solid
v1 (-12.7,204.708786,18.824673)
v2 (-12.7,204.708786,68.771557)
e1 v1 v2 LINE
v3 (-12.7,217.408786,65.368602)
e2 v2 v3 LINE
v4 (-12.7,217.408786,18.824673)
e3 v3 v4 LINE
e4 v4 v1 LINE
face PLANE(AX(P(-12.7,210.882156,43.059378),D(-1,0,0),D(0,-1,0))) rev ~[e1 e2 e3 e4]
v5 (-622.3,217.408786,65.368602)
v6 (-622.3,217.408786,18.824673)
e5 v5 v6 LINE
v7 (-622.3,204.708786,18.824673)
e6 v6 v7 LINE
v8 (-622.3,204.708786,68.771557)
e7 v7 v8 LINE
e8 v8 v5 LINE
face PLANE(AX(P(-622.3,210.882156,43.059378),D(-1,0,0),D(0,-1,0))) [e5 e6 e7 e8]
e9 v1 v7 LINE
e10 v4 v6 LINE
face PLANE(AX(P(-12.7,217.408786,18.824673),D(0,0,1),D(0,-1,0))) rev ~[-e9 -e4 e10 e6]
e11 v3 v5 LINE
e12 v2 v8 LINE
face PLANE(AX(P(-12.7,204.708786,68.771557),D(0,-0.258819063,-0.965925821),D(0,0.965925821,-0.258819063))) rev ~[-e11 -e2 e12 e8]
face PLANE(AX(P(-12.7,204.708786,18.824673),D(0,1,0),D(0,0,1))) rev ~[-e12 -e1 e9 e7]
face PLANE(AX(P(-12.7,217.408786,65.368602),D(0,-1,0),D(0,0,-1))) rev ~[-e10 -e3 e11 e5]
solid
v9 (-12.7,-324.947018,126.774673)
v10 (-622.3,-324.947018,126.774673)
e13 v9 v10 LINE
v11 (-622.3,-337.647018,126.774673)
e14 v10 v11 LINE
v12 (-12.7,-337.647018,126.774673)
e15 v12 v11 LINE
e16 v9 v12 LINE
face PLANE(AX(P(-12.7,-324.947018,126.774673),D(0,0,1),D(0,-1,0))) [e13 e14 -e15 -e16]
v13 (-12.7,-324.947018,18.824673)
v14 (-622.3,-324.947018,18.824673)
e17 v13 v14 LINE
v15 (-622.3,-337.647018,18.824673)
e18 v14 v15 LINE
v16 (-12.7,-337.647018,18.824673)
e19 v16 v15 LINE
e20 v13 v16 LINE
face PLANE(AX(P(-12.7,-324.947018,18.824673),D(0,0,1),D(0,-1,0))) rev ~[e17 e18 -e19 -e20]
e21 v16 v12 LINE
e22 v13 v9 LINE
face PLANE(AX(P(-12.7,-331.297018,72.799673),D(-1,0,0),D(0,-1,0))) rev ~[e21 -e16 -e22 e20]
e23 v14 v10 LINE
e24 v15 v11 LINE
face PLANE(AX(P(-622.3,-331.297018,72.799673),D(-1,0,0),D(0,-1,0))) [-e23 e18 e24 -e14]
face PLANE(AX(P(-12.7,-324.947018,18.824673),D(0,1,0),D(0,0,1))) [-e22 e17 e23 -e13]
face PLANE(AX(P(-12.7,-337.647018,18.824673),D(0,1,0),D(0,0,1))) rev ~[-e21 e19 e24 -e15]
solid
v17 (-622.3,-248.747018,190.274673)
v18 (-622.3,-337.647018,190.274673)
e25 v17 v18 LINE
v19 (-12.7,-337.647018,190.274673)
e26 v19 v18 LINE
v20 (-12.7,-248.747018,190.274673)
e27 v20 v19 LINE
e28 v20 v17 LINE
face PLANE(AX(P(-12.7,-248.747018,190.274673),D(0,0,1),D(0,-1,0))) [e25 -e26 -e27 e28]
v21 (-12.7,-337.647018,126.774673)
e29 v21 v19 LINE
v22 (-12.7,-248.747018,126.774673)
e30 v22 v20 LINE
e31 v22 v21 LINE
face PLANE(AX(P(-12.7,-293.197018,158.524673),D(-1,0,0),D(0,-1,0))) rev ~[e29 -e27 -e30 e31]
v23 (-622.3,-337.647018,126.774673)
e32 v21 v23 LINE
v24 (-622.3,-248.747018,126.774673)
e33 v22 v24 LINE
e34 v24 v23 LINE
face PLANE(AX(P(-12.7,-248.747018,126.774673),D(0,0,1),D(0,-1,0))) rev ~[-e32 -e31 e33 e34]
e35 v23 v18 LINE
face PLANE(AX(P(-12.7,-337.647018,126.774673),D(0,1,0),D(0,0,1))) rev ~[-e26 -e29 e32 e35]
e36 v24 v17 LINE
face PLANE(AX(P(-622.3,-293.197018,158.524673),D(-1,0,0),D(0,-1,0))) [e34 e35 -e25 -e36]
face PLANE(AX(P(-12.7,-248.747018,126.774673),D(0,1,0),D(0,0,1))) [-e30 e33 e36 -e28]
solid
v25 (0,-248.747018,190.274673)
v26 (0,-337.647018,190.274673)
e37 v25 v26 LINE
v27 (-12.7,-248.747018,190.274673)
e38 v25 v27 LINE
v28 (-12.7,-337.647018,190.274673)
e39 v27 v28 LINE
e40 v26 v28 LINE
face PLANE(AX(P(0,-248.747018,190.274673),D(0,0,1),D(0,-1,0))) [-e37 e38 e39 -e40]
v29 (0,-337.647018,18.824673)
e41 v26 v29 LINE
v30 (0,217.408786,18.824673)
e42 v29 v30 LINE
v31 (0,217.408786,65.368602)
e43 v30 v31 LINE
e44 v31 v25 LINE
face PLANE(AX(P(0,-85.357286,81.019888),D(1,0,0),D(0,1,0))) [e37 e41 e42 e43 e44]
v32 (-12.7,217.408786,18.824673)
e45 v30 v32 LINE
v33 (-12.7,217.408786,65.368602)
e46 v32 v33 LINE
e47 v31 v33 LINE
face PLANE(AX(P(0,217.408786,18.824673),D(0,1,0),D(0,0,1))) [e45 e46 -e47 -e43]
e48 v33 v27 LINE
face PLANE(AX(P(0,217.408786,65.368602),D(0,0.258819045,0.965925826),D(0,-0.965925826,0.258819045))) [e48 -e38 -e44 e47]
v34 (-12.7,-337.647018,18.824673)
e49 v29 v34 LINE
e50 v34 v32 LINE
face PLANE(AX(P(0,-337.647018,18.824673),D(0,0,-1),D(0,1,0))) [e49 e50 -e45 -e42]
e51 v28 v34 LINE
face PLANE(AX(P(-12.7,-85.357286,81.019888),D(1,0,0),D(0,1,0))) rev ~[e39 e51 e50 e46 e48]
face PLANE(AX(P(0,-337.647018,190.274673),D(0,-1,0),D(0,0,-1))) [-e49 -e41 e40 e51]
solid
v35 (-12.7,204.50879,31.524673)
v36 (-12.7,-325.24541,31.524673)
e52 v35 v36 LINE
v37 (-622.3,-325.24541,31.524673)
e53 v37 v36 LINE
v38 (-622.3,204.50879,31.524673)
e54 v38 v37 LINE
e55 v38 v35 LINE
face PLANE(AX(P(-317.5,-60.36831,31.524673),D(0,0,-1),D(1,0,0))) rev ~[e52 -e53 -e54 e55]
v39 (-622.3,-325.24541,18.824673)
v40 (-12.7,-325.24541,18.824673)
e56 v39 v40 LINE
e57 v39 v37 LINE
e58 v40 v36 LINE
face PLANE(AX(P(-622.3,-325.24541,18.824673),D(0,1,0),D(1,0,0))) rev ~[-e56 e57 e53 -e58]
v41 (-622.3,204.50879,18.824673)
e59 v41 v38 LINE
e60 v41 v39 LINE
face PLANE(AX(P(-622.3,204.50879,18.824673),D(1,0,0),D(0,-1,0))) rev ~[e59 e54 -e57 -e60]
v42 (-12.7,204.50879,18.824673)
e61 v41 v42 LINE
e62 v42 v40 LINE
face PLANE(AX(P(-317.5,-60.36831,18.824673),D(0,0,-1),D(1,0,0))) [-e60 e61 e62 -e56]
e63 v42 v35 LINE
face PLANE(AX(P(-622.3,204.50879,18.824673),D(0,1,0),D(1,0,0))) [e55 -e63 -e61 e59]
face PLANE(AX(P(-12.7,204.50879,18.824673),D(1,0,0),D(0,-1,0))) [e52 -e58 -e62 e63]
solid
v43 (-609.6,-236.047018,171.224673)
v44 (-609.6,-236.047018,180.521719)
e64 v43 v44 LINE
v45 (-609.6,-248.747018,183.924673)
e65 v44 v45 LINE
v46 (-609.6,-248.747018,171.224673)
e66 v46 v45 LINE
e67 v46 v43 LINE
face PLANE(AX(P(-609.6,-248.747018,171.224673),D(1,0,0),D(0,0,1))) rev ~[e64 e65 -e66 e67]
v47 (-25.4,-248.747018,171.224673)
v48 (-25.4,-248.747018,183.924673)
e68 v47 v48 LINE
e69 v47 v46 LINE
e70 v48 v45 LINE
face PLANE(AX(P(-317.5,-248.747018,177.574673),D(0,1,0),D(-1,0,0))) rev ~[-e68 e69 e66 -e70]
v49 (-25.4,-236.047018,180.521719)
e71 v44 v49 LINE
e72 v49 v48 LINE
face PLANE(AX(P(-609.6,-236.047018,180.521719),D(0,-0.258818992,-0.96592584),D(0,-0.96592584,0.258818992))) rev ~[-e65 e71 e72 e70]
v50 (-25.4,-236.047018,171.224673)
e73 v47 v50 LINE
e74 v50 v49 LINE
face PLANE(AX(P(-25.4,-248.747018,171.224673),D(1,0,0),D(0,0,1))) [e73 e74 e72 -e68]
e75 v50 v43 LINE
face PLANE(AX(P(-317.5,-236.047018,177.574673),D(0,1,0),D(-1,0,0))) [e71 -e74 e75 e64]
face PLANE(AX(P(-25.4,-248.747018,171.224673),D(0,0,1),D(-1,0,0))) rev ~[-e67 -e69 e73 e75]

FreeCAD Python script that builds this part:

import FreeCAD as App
import Part
import Sketcher
from FreeCAD import Vector
Q = App.Units.Quantity


def add_polygon(sketch, points):
    """Adds a closed chain of lines whose ends are joined by coincident constraints."""
    first, n = sketch.GeometryCount, len(points)
    for a, b in zip(points, points[1:] + points[:1]):
        sketch.addGeometry(Part.LineSegment(App.Vector(*a, 0), App.Vector(*b, 0)), False)
    for i in range(n):
        sketch.addConstraint(Sketcher.Constraint("Coincident", first + i, 2, first + (i + 1) % n, 1))

doc = App.newDocument("Part")
body = doc.addObject("PartDesign::Body", "Body")

# Sketch on YZ plane
sketch1 = body.newObject("Sketcher::SketchObject", "Sketch")
sketch1.AttachmentSupport = (doc.getObject("YZ_Plane"), [""])
sketch1.MapMode = "FlatFace"
add_polygon(sketch1, [(-338, 19), (217, 19), (217, 65), (-249, 190), (-338, 190)])  # lines 0-4
sketch1.addConstraint(Sketcher.Constraint("Horizontal", 0))
sketch1.addConstraint(Sketcher.Constraint("Vertical", 1))
sketch1.addConstraint(Sketcher.Constraint("Horizontal", 3))
sketch1.addConstraint(Sketcher.Constraint("Vertical", 4))
sketch1.addConstraint(Sketcher.Constraint("Distance", 2, Q("19 in")))
sketch1.addConstraint(Sketcher.Constraint("DistanceX", 3, 2, 3, 1, Q("3.5 in")))
sketch1.addConstraint(Sketcher.Constraint("Angle", 2, Q("165 deg")))
sketch1.addConstraint(Sketcher.Constraint("DistanceY", 4, 2, 4, 1, Q("6.75 in")))
sketch1.addConstraint(Sketcher.Constraint("DistanceY", -1, 1, 1, 2, 65.368602))
sketch1.addConstraint(Sketcher.Constraint("DistanceX", 2, 2, -1, 1, 248.747018))
pad1 = body.newObject("PartDesign::Pad", "Pad")
pad1.Profile = sketch1
pad1.Length = Q("0.5 in")
pad1.Reversed = True
body2 = doc.addObject("PartDesign::Body", "Body001")

# Sketch on YZ plane
sketch2 = body2.newObject("Sketcher::SketchObject", "Sketch001")
sketch2.AttachmentSupport = (doc.getObject("YZ_Plane001"), [""])
sketch2.MapMode = "FlatFace"
sketch2.AttachmentOffset = App.Placement(Vector(0, 0, -0.5 * 25.4), App.Rotation())
add_polygon(sketch2, [(217, 65), (217, 19), (205, 19), (205, 69)])  # lines 0-3
sketch2.addConstraint(Sketcher.Constraint("Vertical", 0))
sketch2.addConstraint(Sketcher.Constraint("Horizontal", 1))
sketch2.addConstraint(Sketcher.Constraint("Vertical", 2))
sketch2.addConstraint(Sketcher.Constraint("DistanceX", 1, 2, 1, 1, Q("0.5 in")))
sketch2.addConstraint(Sketcher.Constraint("Angle", 3, Q("-15.000001 deg")))
sketch2.addConstraint(Sketcher.Constraint("DistanceY", 0, 2, 0, 1, 46.543929))
sketch2.addConstraint(Sketcher.Constraint("DistanceY", -1, 1, 3, 2, 65.368602))
sketch2.addConstraint(Sketcher.Constraint("DistanceX", -1, 1, 0, 2, 217.408786))
pad2 = body2.newObject("PartDesign::Pad", "Pad001")
pad2.Profile = sketch2
pad2.Length = Q("24 in")
pad2.Reversed = True
body3 = doc.addObject("PartDesign::Body", "Body002")

# Sketch on YZ plane
sketch3 = body3.newObject("Sketcher::SketchObject", "Sketch002")
sketch3.AttachmentSupport = (doc.getObject("YZ_Plane002"), [""])
sketch3.MapMode = "FlatFace"
sketch3.AttachmentOffset = App.Placement(Vector(0, 0, -0.5 * 25.4), App.Rotation())
add_polygon(sketch3, [(-249, 190), (-249, 127), (-338, 127), (-338, 190)])  # lines 0-3
sketch3.addConstraint(Sketcher.Constraint("Vertical", 0))
sketch3.addConstraint(Sketcher.Constraint("Horizontal", 1))
sketch3.addConstraint(Sketcher.Constraint("Vertical", 2))
sketch3.addConstraint(Sketcher.Constraint("Horizontal", 3))
sketch3.addConstraint(Sketcher.Constraint("DistanceX", 1, 2, 1, 1, Q("3.5 in")))
sketch3.addConstraint(Sketcher.Constraint("DistanceY", 0, 2, 0, 1, Q("2.5 in")))
sketch3.addConstraint(Sketcher.Constraint("DistanceX", 0, 2, -1, 1, 248.747018))
sketch3.addConstraint(Sketcher.Constraint("DistanceY", -1, 1, 0, 2, 126.774673))
pad3 = body3.newObject("PartDesign::Pad", "Pad002")
pad3.Profile = sketch3
pad3.Length = Q("24 in")
pad3.Reversed = True
body4 = doc.addObject("PartDesign::Body", "Body003")

# Sketch on YZ plane
sketch4 = body4.newObject("Sketcher::SketchObject", "Sketch003")
sketch4.AttachmentSupport = (doc.getObject("YZ_Plane003"), [""])
sketch4.MapMode = "FlatFace"
sketch4.AttachmentOffset = App.Placement(Vector(0, 0, -0.5 * 25.4), App.Rotation())
add_polygon(sketch4, [(-325, 127), (-325, 19), (-338, 19), (-338, 127)])  # lines 0-3
sketch4.addConstraint(Sketcher.Constraint("Vertical", 0))
sketch4.addConstraint(Sketcher.Constraint("Horizontal", 1))
sketch4.addConstraint(Sketcher.Constraint("Vertical", 2))
sketch4.addConstraint(Sketcher.Constraint("Horizontal", 3))
sketch4.addConstraint(Sketcher.Constraint("DistanceX", 1, 2, 1, 1, Q("0.5 in")))
sketch4.addConstraint(Sketcher.Constraint("DistanceY", 0, 2, 0, 1, Q("4.25 in")))
sketch4.addConstraint(Sketcher.Constraint("DistanceX", 0, 2, -1, 1, 324.947018))
sketch4.addConstraint(Sketcher.Constraint("DistanceY", -1, 1, 0, 2, 18.824673))
pad4 = body4.newObject("PartDesign::Pad", "Pad003")
pad4.Profile = sketch4
pad4.Length = Q("24 in")
pad4.Reversed = True
body5 = doc.addObject("PartDesign::Body", "Body004")

# Sketch on XY plane
sketch5 = body5.newObject("Sketcher::SketchObject", "Sketch004")
sketch5.AttachmentSupport = (doc.getObject("XY_Plane004"), [""])
sketch5.MapMode = "FlatFace"
sketch5.AttachmentOffset = App.Placement(Vector(0, 0, 18.824673), App.Rotation())
add_polygon(sketch5, [(-622, -325), (-622, 205), (-13, 205), (-13, -325)])  # lines 0-3
sketch5.addConstraint(Sketcher.Constraint("Vertical", 0))
sketch5.addConstraint(Sketcher.Constraint("Horizontal", 1))
sketch5.addConstraint(Sketcher.Constraint("Vertical", 2))
sketch5.addConstraint(Sketcher.Constraint("Horizontal", 3))
sketch5.addConstraint(Sketcher.Constraint("DistanceX", 1, 1, 1, 2, Q("24 in")))
sketch5.addConstraint(Sketcher.Constraint("DistanceX", 0, 2, -1, 1, Q("24.5 in")))
sketch5.addConstraint(Sketcher.Constraint("DistanceY", 0, 1, 0, 2, 529.7542))
sketch5.addConstraint(Sketcher.Constraint("DistanceY", -1, 1, 0, 2, 204.50879))
pad5 = body5.newObject("PartDesign::Pad", "Pad004")
pad5.Profile = sketch5
pad5.Length = Q("0.5 in")
body6 = doc.addObject("PartDesign::Body", "Body005")

# Sketch on XZ plane
sketch6 = body6.newObject("Sketcher::SketchObject", "Sketch005")
sketch6.AttachmentSupport = (doc.getObject("XZ_Plane005"), [""])
sketch6.MapMode = "FlatFace"
sketch6.AttachmentOffset = App.Placement(Vector(0, 0, 248.747018), App.Rotation())
add_polygon(sketch6, [(-25, 184), (-25, 171), (-610, 171), (-610, 184)])  # lines 0-3
sketch6.addConstraint(Sketcher.Constraint("Vertical", 0))
sketch6.addConstraint(Sketcher.Constraint("Horizontal", 1))
sketch6.addConstraint(Sketcher.Constraint("Vertical", 2))
sketch6.addConstraint(Sketcher.Constraint("Horizontal", 3))
sketch6.addConstraint(Sketcher.Constraint("DistanceX", 1, 2, 1, 1, Q("23 in")))
sketch6.addConstraint(Sketcher.Constraint("DistanceY", 0, 2, 0, 1, Q("0.5 in")))
sketch6.addConstraint(Sketcher.Constraint("DistanceX", 0, 2, -1, 1, Q("1 in")))
sketch6.addConstraint(Sketcher.Constraint("DistanceY", -1, 1, 0, 2, 171.224673))
pad6 = body6.newObject("PartDesign::Pad", "Pad005")
pad6.Profile = sketch6
pad6.Length = Q("0.5 in")
pad6.Reversed = True

# Sketch on YZ plane
sketch7 = body6.newObject("Sketcher::SketchObject", "Sketch006")
sketch7.AttachmentSupport = (doc.getObject("YZ_Plane005"), [""])
sketch7.MapMode = "FlatFace"
sketch7.AttachmentOffset = App.Placement(Vector(0, 0, -24 * 25.4), App.Rotation())
add_polygon(sketch7, [(-236, 180.5), (-248.7, 183.9), (-236, 183.9)])  # lines 0-2
sketch7.addConstraint(Sketcher.Constraint("Horizontal", 1))
sketch7.addConstraint(Sketcher.Constraint("Vertical", 2))
sketch7.addConstraint(Sketcher.Constraint("DistanceX", 1, 1, 1, 2, Q("0.5 in")))
sketch7.addConstraint(Sketcher.Constraint("Angle", 0, Q("165.000003 deg")))
sketch7.addConstraint(Sketcher.Constraint("DistanceX", 0, 2, -1, 1, 248.747018))
sketch7.addConstraint(Sketcher.Constraint("DistanceY", -1, 1, 2, 2, 180.521719))
pocket1 = body6.newObject("PartDesign::Pocket", "Pocket")
pocket1.Profile = sketch7
pocket1.Type = "ThroughAll"
pocket1.Reversed = True

doc.recompute()
